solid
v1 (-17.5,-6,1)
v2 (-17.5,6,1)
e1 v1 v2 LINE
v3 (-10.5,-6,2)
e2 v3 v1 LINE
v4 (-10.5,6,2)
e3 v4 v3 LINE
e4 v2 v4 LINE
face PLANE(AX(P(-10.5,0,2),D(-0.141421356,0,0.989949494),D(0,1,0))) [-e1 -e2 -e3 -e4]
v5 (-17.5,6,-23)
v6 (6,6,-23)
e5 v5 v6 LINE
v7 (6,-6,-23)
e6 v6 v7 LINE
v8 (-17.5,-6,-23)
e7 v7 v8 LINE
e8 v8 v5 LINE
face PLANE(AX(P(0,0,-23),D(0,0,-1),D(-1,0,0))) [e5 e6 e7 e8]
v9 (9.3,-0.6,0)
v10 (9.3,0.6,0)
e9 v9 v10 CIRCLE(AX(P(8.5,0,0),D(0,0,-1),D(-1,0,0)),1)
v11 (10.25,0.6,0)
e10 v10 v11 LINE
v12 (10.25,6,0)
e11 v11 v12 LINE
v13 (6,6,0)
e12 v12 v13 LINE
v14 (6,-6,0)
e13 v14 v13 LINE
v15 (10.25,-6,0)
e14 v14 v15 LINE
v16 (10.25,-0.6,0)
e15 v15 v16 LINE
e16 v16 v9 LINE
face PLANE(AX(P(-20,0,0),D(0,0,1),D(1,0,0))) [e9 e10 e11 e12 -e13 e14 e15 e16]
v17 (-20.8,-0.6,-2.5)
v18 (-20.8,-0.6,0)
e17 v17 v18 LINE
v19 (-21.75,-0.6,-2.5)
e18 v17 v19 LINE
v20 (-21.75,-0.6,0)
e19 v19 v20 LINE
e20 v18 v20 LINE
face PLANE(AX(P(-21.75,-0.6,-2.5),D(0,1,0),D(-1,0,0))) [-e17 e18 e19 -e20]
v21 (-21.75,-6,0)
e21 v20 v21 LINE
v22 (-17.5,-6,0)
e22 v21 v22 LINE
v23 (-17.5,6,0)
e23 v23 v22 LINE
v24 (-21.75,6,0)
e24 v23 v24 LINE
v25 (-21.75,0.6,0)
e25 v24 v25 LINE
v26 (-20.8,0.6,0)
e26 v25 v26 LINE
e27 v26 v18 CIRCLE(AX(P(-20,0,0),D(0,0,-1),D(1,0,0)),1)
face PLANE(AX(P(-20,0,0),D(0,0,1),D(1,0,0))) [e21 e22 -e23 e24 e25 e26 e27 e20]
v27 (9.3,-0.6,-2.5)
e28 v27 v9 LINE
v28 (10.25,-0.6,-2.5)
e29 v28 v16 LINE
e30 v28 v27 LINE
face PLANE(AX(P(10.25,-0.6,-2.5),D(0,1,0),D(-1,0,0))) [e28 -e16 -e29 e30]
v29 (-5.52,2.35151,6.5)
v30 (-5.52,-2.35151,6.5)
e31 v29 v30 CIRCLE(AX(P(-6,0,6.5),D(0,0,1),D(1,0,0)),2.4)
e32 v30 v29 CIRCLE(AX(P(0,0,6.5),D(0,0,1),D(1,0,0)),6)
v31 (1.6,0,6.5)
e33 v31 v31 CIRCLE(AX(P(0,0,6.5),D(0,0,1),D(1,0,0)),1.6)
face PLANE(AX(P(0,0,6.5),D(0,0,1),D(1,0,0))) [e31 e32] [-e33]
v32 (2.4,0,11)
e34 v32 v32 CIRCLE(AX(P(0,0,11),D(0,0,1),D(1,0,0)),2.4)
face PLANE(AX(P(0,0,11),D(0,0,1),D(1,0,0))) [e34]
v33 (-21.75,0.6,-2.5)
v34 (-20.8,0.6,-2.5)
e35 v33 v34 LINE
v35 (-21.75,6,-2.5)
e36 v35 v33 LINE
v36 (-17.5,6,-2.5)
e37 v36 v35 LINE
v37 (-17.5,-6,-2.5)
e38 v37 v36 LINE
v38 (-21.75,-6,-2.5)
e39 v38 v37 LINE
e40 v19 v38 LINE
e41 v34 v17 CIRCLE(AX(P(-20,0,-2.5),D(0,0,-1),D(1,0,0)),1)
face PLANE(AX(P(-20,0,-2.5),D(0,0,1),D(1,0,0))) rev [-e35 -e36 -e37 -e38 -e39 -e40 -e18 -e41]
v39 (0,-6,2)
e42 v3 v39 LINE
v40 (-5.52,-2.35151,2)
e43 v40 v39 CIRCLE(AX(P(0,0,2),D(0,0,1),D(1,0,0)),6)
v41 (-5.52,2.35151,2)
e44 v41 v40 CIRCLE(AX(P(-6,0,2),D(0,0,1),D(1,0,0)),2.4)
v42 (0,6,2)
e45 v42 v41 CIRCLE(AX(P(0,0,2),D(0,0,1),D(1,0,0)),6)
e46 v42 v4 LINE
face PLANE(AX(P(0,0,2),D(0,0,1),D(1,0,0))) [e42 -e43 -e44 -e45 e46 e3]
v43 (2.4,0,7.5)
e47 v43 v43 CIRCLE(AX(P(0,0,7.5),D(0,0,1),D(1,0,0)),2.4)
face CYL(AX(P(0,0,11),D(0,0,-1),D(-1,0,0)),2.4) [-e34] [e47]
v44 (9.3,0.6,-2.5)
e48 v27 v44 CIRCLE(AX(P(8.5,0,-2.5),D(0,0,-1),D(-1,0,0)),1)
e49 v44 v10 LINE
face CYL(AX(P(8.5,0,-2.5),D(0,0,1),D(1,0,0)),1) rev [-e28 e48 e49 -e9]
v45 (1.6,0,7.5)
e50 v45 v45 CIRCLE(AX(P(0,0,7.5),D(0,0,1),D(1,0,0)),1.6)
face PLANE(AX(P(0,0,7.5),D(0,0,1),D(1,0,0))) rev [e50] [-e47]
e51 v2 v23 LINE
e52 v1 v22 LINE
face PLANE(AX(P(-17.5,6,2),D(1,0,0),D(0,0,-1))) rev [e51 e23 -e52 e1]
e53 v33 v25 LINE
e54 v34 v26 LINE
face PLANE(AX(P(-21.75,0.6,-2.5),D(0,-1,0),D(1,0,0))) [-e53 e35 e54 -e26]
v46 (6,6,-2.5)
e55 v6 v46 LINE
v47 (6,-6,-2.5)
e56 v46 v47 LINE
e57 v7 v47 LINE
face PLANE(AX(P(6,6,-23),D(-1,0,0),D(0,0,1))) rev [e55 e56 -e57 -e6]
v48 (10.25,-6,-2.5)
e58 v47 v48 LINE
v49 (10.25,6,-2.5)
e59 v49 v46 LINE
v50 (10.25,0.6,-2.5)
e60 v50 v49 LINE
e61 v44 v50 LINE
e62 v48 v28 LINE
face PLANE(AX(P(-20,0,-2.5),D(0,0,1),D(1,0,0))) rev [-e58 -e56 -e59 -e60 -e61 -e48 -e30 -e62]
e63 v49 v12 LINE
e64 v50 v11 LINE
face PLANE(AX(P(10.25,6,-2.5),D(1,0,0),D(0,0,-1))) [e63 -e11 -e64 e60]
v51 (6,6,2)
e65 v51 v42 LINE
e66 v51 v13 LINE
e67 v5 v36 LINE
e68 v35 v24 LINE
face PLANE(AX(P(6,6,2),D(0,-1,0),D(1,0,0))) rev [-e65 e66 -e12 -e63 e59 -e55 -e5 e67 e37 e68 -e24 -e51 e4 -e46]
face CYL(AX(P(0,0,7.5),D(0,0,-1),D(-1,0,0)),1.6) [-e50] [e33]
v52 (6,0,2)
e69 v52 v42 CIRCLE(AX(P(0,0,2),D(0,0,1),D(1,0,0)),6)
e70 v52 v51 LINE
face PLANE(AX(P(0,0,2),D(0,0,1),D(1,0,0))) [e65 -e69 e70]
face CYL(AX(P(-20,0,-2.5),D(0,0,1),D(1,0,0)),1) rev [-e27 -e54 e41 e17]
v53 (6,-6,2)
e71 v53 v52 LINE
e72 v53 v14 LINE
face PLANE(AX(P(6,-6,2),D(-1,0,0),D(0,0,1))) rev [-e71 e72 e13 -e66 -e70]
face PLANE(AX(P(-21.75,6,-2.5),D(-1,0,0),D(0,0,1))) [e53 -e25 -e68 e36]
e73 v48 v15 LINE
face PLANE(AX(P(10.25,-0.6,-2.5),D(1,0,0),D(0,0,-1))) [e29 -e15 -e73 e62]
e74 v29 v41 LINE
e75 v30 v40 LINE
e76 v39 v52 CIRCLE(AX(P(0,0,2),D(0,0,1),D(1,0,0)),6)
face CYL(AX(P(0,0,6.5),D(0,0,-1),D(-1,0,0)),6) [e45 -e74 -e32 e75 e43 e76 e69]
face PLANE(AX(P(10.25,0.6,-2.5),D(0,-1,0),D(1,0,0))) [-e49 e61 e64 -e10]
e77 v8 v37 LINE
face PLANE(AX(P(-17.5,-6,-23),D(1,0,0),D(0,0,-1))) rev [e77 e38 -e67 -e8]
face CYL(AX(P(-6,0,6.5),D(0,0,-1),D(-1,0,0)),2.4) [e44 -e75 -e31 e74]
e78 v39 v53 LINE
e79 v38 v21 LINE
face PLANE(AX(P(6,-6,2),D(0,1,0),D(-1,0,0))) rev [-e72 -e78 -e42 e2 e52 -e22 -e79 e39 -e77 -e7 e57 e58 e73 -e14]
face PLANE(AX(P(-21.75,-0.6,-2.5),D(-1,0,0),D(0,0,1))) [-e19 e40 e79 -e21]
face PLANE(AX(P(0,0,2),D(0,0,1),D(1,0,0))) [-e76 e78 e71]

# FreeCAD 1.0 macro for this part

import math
import FreeCAD as App
import Part
import Sketcher
Q = App.Units.Quantity


def edges_at(feature, points):
    """Names of the edges that pass closest to the given points."""
    edges = feature.Shape.Edges
    near = lambda p: min(range(len(edges)), key=lambda i: edges[i].distToShape(Part.Vertex(*p))[0])
    return sorted({f"Edge{near(p) + 1}" for p in points})

doc = App.newDocument("Part")
body = doc.addObject("PartDesign::Body", "Body")

# Sketch on XY plane
sketch1 = doc.addObject("Sketcher::SketchObject", "Sketch")
body.addObject(sketch1)
sketch1.AttachmentSupport = (doc.XY_Plane, [""])
sketch1.MapMode = "FlatFace"
sketch1.addGeometry(Part.Circle(App.Vector(0, 0, 0), App.Vector(0, 0, 1), 6), False)
sketch1.addConstraint(Sketcher.Constraint("Coincident", 0, 3, -1, 1))
sketch1.addConstraint(Sketcher.Constraint("Diameter", 0, Q("12 mm")))
pad1 = doc.addObject("PartDesign::Pad", "Pad")
body.addObject(pad1)
pad1.Profile = sketch1
pad1.Length = 6.5

# Sketch on XY plane
sketch2 = doc.addObject("Sketcher::SketchObject", "Sketch001")
body.addObject(sketch2)
sketch2.AttachmentSupport = (doc.XY_Plane, [""])
sketch2.MapMode = "FlatFace"
sketch2.addGeometry(Part.LineSegment(App.Vector(-18, 6, 0), App.Vector(-18, -6, 0)), False)
sketch2.addGeometry(Part.LineSegment(App.Vector(-18, -6, 0), App.Vector(6, -6, 0)), False)
sketch2.addGeometry(Part.LineSegment(App.Vector(6, -6, 0), App.Vector(6, 6, 0)), False)
sketch2.addGeometry(Part.LineSegment(App.Vector(6, 6, 0), App.Vector(-18, 6, 0)), False)
sketch2.addConstraint(Sketcher.Constraint("Coincident", 0, 2, 1, 1))
sketch2.addConstraint(Sketcher.Constraint("Coincident", 1, 2, 2, 1))
sketch2.addConstraint(Sketcher.Constraint("Coincident", 2, 2, 3, 1))
sketch2.addConstraint(Sketcher.Constraint("Coincident", 3, 2, 0, 1))
sketch2.addConstraint(Sketcher.Constraint("Vertical", 0))
sketch2.addConstraint(Sketcher.Constraint("Horizontal", 1))
sketch2.addConstraint(Sketcher.Constraint("Vertical", 2))
sketch2.addConstraint(Sketcher.Constraint("Horizontal", 3))
sketch2.addConstraint(Sketcher.Constraint("DistanceY", 0, 2, 0, 1, Q("12 mm")))
sketch2.addConstraint(Sketcher.Constraint("DistanceX", 1, 1, 1, 2, Q("23.5 mm")))
sketch2.addConstraint(Sketcher.Constraint("DistanceY", 0, 2, -1, 1, Q("6 mm")))
sketch2.addConstraint(Sketcher.Constraint("DistanceX", -1, 1, 1, 2, Q("6 mm")))
pad2 = doc.addObject("PartDesign::Pad", "Pad001")
body.addObject(pad2)
pad2.Profile = sketch2
pad2.Length = 2

# Sketch on XY plane
sketch3 = doc.addObject("Sketcher::SketchObject", "Sketch002")
body.addObject(sketch3)
sketch3.AttachmentSupport = (doc.XY_Plane, [""])
sketch3.MapMode = "FlatFace"
sketch3.addGeometry(Part.LineSegment(App.Vector(10.2, 6, 0), App.Vector(-21.8, 6, 0)), False)
sketch3.addGeometry(Part.LineSegment(App.Vector(-21.8, 6, 0), App.Vector(-21.8, 0.6, 0)), False)
sketch3.addGeometry(Part.LineSegment(App.Vector(-21.8, 0.6, 0), App.Vector(-20.8, 0.6, 0)), False)
sketch3.addGeometry(Part.ArcOfCircle(Part.Circle(App.Vector(-20, 0, 0), App.Vector(0, 0, 1), 1), math.radians(-143), math.radians(143)), False)
sketch3.addGeometry(Part.LineSegment(App.Vector(-20.8, -0.6, 0), App.Vector(-21.8, -0.6, 0)), False)
sketch3.addGeometry(Part.LineSegment(App.Vector(-21.8, -0.6, 0), App.Vector(-21.8, -6, 0)), False)
sketch3.addGeometry(Part.LineSegment(App.Vector(-21.8, -6, 0), App.Vector(10.2, -6, 0)), False)
sketch3.addGeometry(Part.LineSegment(App.Vector(10.2, -6, 0), App.Vector(10.2, -0.6, 0)), False)
sketch3.addGeometry(Part.LineSegment(App.Vector(10.2, -0.6, 0), App.Vector(9.3, -0.6, 0)), False)
sketch3.addGeometry(Part.ArcOfCircle(Part.Circle(App.Vector(8.5, 0, 0), App.Vector(0, 0, 1), 1), math.radians(37), math.radians(323)), False)
sketch3.addGeometry(Part.LineSegment(App.Vector(9.3, 0.6, 0), App.Vector(10.2, 0.6, 0)), False)
sketch3.addGeometry(Part.LineSegment(App.Vector(10.2, 0.6, 0), App.Vector(10.2, 6, 0)), False)
sketch3.addConstraint(Sketcher.Constraint("Coincident", 0, 2, 1, 1))
sketch3.addConstraint(Sketcher.Constraint("Coincident", 1, 2, 2, 1))
sketch3.addConstraint(Sketcher.Constraint("Coincident", 2, 2, 3, 2))
sketch3.addConstraint(Sketcher.Constraint("Coincident", 3, 1, 4, 1))
sketch3.addConstraint(Sketcher.Constraint("Coincident", 4, 2, 5, 1))
sketch3.addConstraint(Sketcher.Constraint("Coincident", 5, 2, 6, 1))
sketch3.addConstraint(Sketcher.Constraint("Coincident", 6, 2, 7, 1))
sketch3.addConstraint(Sketcher.Constraint("Coincident", 7, 2, 8, 1))
sketch3.addConstraint(Sketcher.Constraint("Coincident", 8, 2, 9, 2))
sketch3.addConstraint(Sketcher.Constraint("Coincident", 9, 1, 10, 1))
sketch3.addConstraint(Sketcher.Constraint("Coincident", 10, 2, 11, 1))
sketch3.addConstraint(Sketcher.Constraint("Coincident", 11, 2, 0, 1))
sketch3.addConstraint(Sketcher.Constraint("Horizontal", 0))
sketch3.addConstraint(Sketcher.Constraint("Vertical", 1))
sketch3.addConstraint(Sketcher.Constraint("Horizontal", 2))
sketch3.addConstraint(Sketcher.Constraint("Horizontal", 4))
sketch3.addConstraint(Sketcher.Constraint("Vertical", 5))
sketch3.addConstraint(Sketcher.Constraint("Horizontal", 6))
sketch3.addConstraint(Sketcher.Constraint("Vertical", 7))
sketch3.addConstraint(Sketcher.Constraint("Horizontal", 8))
sketch3.addConstraint(Sketcher.Constraint("Horizontal", 10))
sketch3.addConstraint(Sketcher.Constraint("Vertical", 11))
sketch3.addConstraint(Sketcher.Constraint("Equal", 3, 9))
sketch3.addConstraint(Sketcher.Constraint("Symmetric", 2, 2, 3, 1, -1))
sketch3.addConstraint(Sketcher.Constraint("Symmetric", 0, 2, 5, 2, -1))
sketch3.addConstraint(Sketcher.Constraint("Symmetric", 8, 2, 9, 1, -1))
sketch3.addConstraint(Sketcher.Constraint("Horizontal", 4, 2, 7, 2))
sketch3.addConstraint(Sketcher.Constraint("Vertical", 7, 2, 10, 2))
sketch3.addConstraint(Sketcher.Constraint("Equal", 4, 8))
sketch3.addConstraint(Sketcher.Constraint("Radius", 3, Q("1 mm")))
sketch3.addConstraint(Sketcher.Constraint("DistanceX", 0, 2, 0, 1, Q("32 mm")))
sketch3.addConstraint(Sketcher.Constraint("DistanceY", 1, 2, 1, 1, Q("5.4 mm")))
sketch3.addConstraint(Sketcher.Constraint("DistanceX", 3, 3, -1, 1, Q("20 mm")))
sketch3.addConstraint(Sketcher.Constraint("DistanceY", -1, 1, 0, 2, Q("6 mm")))
sketch3.addConstraint(Sketcher.Constraint("DistanceX", 2, 1, 2, 2, Q("0.95 mm")))
pad3 = doc.addObject("PartDesign::Pad", "Pad002")
body.addObject(pad3)
pad3.Profile = sketch3
pad3.Length = 2.5
pad3.Reversed = True

# Sketch on XY plane
sketch4 = doc.addObject("Sketcher::SketchObject", "Sketch003")
body.addObject(sketch4)
sketch4.AttachmentSupport = (doc.XY_Plane, [""])
sketch4.MapMode = "FlatFace"
sketch4.AttachmentOffset = App.Placement(App.Vector(0, 0, -2.5), App.Rotation())
sketch4.addGeometry(Part.LineSegment(App.Vector(6, 6, 0), App.Vector(6, -6, 0)), False)
sketch4.addGeometry(Part.LineSegment(App.Vector(6, -6, 0), App.Vector(-18, -6, 0)), False)
sketch4.addGeometry(Part.LineSegment(App.Vector(-18, -6, 0), App.Vector(-18, 6, 0)), False)
sketch4.addGeometry(Part.LineSegment(App.Vector(-18, 6, 0), App.Vector(6, 6, 0)), False)
sketch4.addConstraint(Sketcher.Constraint("Coincident", 0, 2, 1, 1))
sketch4.addConstraint(Sketcher.Constraint("Coincident", 1, 2, 2, 1))
sketch4.addConstraint(Sketcher.Constraint("Coincident", 2, 2, 3, 1))
sketch4.addConstraint(Sketcher.Constraint("Coincident", 3, 2, 0, 1))
sketch4.addConstraint(Sketcher.Constraint("Vertical", 0))
sketch4.addConstraint(Sketcher.Constraint("Horizontal", 1))
sketch4.addConstraint(Sketcher.Constraint("Vertical", 2))
sketch4.addConstraint(Sketcher.Constraint("Horizontal", 3))
sketch4.addConstraint(Sketcher.Constraint("DistanceY", 0, 2, 0, 1, Q("12 mm")))
sketch4.addConstraint(Sketcher.Constraint("DistanceX", 1, 2, 1, 1, Q("23.5 mm")))
sketch4.addConstraint(Sketcher.Constraint("DistanceX", -1, 1, 0, 2, Q("6 mm")))
sketch4.addConstraint(Sketcher.Constraint("DistanceY", 0, 2, -1, 1, Q("6 mm")))
pad4 = doc.addObject("PartDesign::Pad", "Pad003")
body.addObject(pad4)
pad4.Profile = sketch4
pad4.Length = 20.5
pad4.Reversed = True

# Sketch on XY plane
sketch5 = doc.addObject("Sketcher::SketchObject", "Sketch004")
body.addObject(sketch5)
sketch5.AttachmentSupport = (doc.XY_Plane, [""])
sketch5.MapMode = "FlatFace"
sketch5.AttachmentOffset = App.Placement(App.Vector(0, 0, 2), App.Rotation())
sketch5.addGeometry(Part.ArcOfCircle(Part.Circle(App.Vector(0, 0, 0), App.Vector(0, 0, 1), 6), math.radians(157), math.radians(203)), False)
sketch5.addGeometry(Part.ArcOfCircle(Part.Circle(App.Vector(-6, 0, 0), App.Vector(0, 0, 1), 2.4), math.radians(78), math.radians(282)), False)
sketch5.addConstraint(Sketcher.Constraint("Coincident", 0, 1, 1, 1))
sketch5.addConstraint(Sketcher.Constraint("Coincident", 1, 2, 0, 2))
sketch5.addConstraint(Sketcher.Constraint("Coincident", 0, 3, -1, 1))
sketch5.addConstraint(Sketcher.Constraint("PointOnObject", 1, 3, -1))
sketch5.addConstraint(Sketcher.Constraint("Radius", 0, Q("6 mm")))
sketch5.addConstraint(Sketcher.Constraint("Radius", 1, Q("2.4 mm")))
sketch5.addConstraint(Sketcher.Constraint("DistanceX", 1, 3, -1, 1, Q("6 mm")))
pad5 = doc.addObject("PartDesign::Pad", "Pad004")
body.addObject(pad5)
pad5.Profile = sketch5
pad5.Length = 4.5

# Sketch on XY plane
sketch6 = doc.addObject("Sketcher::SketchObject", "Sketch005")
body.addObject(sketch6)
sketch6.AttachmentSupport = (doc.XY_Plane, [""])
sketch6.MapMode = "FlatFace"
sketch6.AttachmentOffset = App.Placement(App.Vector(0, 0, 6.5), App.Rotation())
sketch6.addGeometry(Part.Circle(App.Vector(0, 0, 0), App.Vector(0, 0, 1), 1.6), False)
sketch6.addConstraint(Sketcher.Constraint("Coincident", 0, 3, -1, 1))
sketch6.addConstraint(Sketcher.Constraint("Diameter", 0, Q("3.2 mm")))
pad6 = doc.addObject("PartDesign::Pad", "Pad005")
body.addObject(pad6)
pad6.Profile = sketch6
pad6.Length = 1

# Sketch on XY plane
sketch7 = doc.addObject("Sketcher::SketchObject", "Sketch006")
body.addObject(sketch7)
sketch7.AttachmentSupport = (doc.XY_Plane, [""])
sketch7.MapMode = "FlatFace"
sketch7.AttachmentOffset = App.Placement(App.Vector(0, 0, 7.5), App.Rotation())
sketch7.addGeometry(Part.Circle(App.Vector(0, 0, 0), App.Vector(0, 0, 1), 2.4), False)
sketch7.addConstraint(Sketcher.Constraint("Coincident", 0, 3, -1, 1))
sketch7.addConstraint(Sketcher.Constraint("Diameter", 0, Q("4.8 mm")))
pad7 = doc.addObject("PartDesign::Pad", "Pad006")
body.addObject(pad7)
pad7.Profile = sketch7
pad7.Length = 3.5
doc.recompute()

chamfer = doc.addObject("PartDesign::Chamfer", "Chamfer")
body.addObject(chamfer)
chamfer.Base = (pad7, edges_at(pad7, [(-17.5, 0, 2)]))
chamfer.ChamferType = "Two distances"
chamfer.Size = 1
chamfer.Size2 = 7

doc.recompute()
